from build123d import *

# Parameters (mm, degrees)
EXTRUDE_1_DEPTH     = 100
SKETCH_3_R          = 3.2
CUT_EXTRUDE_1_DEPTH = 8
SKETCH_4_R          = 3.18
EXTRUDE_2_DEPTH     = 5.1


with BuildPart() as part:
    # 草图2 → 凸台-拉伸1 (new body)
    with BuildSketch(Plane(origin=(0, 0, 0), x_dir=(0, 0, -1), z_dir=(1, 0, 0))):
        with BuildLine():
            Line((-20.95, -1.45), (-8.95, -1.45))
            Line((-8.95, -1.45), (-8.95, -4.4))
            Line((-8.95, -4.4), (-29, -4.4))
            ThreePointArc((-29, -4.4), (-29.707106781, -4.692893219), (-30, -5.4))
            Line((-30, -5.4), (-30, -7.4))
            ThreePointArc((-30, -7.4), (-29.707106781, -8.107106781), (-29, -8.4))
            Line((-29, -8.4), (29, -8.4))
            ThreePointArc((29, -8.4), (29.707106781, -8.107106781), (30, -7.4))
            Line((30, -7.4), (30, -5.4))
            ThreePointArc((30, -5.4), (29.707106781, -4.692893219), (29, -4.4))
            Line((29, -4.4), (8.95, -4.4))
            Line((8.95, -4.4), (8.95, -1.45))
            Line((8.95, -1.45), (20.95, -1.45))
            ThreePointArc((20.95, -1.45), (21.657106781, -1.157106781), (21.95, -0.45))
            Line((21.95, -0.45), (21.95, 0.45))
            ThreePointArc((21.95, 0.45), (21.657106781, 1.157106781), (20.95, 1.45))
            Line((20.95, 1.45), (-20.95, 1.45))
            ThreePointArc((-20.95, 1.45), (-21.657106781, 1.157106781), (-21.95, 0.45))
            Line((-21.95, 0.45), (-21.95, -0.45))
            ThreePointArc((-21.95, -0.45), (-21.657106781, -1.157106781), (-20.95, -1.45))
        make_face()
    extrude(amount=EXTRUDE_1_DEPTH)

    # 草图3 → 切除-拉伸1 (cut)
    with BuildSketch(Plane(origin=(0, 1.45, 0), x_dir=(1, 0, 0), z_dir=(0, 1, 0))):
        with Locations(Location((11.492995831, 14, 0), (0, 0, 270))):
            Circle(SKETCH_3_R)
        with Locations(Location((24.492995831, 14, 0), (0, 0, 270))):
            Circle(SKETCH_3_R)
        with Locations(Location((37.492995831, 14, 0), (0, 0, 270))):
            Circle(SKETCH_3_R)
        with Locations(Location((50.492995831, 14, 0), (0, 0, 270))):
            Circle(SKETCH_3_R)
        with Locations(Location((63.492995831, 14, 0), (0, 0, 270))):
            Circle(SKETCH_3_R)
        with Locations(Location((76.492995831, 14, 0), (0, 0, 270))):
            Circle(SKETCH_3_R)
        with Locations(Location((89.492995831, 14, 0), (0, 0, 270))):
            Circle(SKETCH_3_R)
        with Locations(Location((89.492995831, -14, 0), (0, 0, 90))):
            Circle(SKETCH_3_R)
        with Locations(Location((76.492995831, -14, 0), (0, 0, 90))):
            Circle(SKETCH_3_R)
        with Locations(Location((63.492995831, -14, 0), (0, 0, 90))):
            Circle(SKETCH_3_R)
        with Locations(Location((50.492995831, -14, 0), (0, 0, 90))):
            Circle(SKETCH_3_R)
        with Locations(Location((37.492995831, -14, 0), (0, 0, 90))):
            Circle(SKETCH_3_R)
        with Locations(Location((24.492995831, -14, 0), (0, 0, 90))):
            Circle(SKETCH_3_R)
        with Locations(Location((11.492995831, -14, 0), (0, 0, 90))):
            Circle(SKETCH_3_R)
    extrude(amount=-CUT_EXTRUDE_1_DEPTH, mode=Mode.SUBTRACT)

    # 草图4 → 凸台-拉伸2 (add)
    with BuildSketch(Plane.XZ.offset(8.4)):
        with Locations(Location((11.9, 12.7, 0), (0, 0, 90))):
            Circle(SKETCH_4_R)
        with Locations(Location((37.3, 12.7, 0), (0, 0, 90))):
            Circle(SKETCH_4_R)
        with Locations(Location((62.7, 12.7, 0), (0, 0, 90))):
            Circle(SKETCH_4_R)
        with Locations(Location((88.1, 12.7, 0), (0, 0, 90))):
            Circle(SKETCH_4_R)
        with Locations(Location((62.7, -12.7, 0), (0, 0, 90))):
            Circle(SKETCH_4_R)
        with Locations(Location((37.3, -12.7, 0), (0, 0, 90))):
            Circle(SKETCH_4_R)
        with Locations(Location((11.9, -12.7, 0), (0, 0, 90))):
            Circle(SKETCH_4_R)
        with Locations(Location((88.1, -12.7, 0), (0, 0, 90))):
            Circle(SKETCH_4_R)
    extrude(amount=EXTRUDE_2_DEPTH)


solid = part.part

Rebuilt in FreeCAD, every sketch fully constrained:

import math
import FreeCAD as App
import Part
import Sketcher

doc = App.newDocument("Part")
body = doc.addObject("PartDesign::Body", "Body")

sketch1 = body.newObject("Sketcher::SketchObject", "Sketch")
sketch1.AttachmentSupport = (doc.getObject("YZ_Plane"), [""])
sketch1.MapMode = "FlatFace"
sketch1.addGeometry([
    Part.LineSegment(App.Vector(-1.4, 20.9, 0), App.Vector(-1.4, 8.9, 0)),
    Part.LineSegment(App.Vector(-1.4, 8.9, 0), App.Vector(-4.4, 8.9, 0)),
    Part.LineSegment(App.Vector(-4.4, 8.9, 0), App.Vector(-4.4, 29, 0)),
    Part.ArcOfCircle(Part.Circle(App.Vector(-5.4, 29, 0), App.Vector(0, 0, 1), 1), math.radians(0), math.radians(90)),
    Part.LineSegment(App.Vector(-5.4, 30, 0), App.Vector(-7.4, 30, 0)),
    Part.ArcOfCircle(Part.Circle(App.Vector(-7.4, 29, 0), App.Vector(0, 0, 1), 1), math.radians(90), math.radians(180)),
    Part.LineSegment(App.Vector(-8.4, 29, 0), App.Vector(-8.4, -29, 0)),
    Part.ArcOfCircle(Part.Circle(App.Vector(-7.4, -29, 0), App.Vector(0, 0, 1), 1), math.radians(-180), math.radians(-90)),
    Part.LineSegment(App.Vector(-7.4, -30, 0), App.Vector(-5.4, -30, 0)),
    Part.ArcOfCircle(Part.Circle(App.Vector(-5.4, -29, 0), App.Vector(0, 0, 1), 1), math.radians(-90), math.radians(0)),
    Part.LineSegment(App.Vector(-4.4, -29, 0), App.Vector(-4.4, -8.9, 0)),
    Part.LineSegment(App.Vector(-4.4, -8.9, 0), App.Vector(-1.4, -8.9, 0)),
    Part.LineSegment(App.Vector(-1.4, -8.9, 0), App.Vector(-1.4, -20.9, 0)),
    Part.ArcOfCircle(Part.Circle(App.Vector(-0.4, -20.9, 0), App.Vector(0, 0, 1), 1), math.radians(-180), math.radians(-90)),
    Part.LineSegment(App.Vector(-0.5, -21.9, 0), App.Vector(0.5, -21.9, 0)),
    Part.ArcOfCircle(Part.Circle(App.Vector(0.4, -20.9, 0), App.Vector(0, 0, 1), 1), math.radians(-90), math.radians(0)),
    Part.LineSegment(App.Vector(1.4, -20.9, 0), App.Vector(1.4, 20.9, 0)),
    Part.ArcOfCircle(Part.Circle(App.Vector(0.4, 20.9, 0), App.Vector(0, 0, 1), 1), math.radians(0), math.radians(90)),
    Part.LineSegment(App.Vector(0.5, 21.9, 0), App.Vector(-0.5, 21.9, 0)),
    Part.ArcOfCircle(Part.Circle(App.Vector(-0.4, 20.9, 0), App.Vector(0, 0, 1), 1), math.radians(90), math.radians(180)),
], False)
sketch1.addConstraint([
    Sketcher.Constraint("Coincident", 0, 2, 1, 1),
    Sketcher.Constraint("Coincident", 1, 2, 2, 1),
    Sketcher.Constraint("Tangent", 2, 2, 3, 1),
    Sketcher.Constraint("Tangent", 3, 2, 4, 1),
    Sketcher.Constraint("Tangent", 4, 2, 5, 1),
    Sketcher.Constraint("Tangent", 5, 2, 6, 1),
    Sketcher.Constraint("Tangent", 6, 2, 7, 1),
    Sketcher.Constraint("Tangent", 7, 2, 8, 1),
    Sketcher.Constraint("Tangent", 8, 2, 9, 1),
    Sketcher.Constraint("Tangent", 9, 2, 10, 1),
    Sketcher.Constraint("Coincident", 10, 2, 11, 1),
    Sketcher.Constraint("Coincident", 11, 2, 12, 1),
    Sketcher.Constraint("Tangent", 12, 2, 13, 1),
    Sketcher.Constraint("Tangent", 13, 2, 14, 1),
    Sketcher.Constraint("Tangent", 14, 2, 15, 1),
    Sketcher.Constraint("Tangent", 15, 2, 16, 1),
    Sketcher.Constraint("Tangent", 16, 2, 17, 1),
    Sketcher.Constraint("Tangent", 17, 2, 18, 1),
    Sketcher.Constraint("Tangent", 18, 2, 19, 1),
    Sketcher.Constraint("Tangent", 19, 2, 0, 1),
    Sketcher.Constraint("Vertical", 0),
    Sketcher.Constraint("Horizontal", 1),
    Sketcher.Constraint("Vertical", 2),
    Sketcher.Constraint("Horizontal", 4),
    Sketcher.Constraint("Vertical", 6),
    Sketcher.Constraint("Horizontal", 8),
    Sketcher.Constraint("Vertical", 10),
    Sketcher.Constraint("Horizontal", 11),
    Sketcher.Constraint("Vertical", 12),
    Sketcher.Constraint("Horizontal", 14),
    Sketcher.Constraint("Vertical", 16),
    Sketcher.Constraint("Horizontal", 18),
    Sketcher.Constraint("Equal", 3, 5),
    Sketcher.Constraint("Equal", 5, 7),
    Sketcher.Constraint("Equal", 7, 9),
    Sketcher.Constraint("Equal", 9, 13),
    Sketcher.Constraint("Equal", 13, 15),
    Sketcher.Constraint("Equal", 15, 17),
    Sketcher.Constraint("Equal", 17, 19),
    Sketcher.Constraint("Symmetric", 13, 3, 17, 3, -1, 1),
    Sketcher.Constraint("Symmetric", 3, 3, 9, 3, -1),
    Sketcher.Constraint("Symmetric", 0, 2, 11, 2, -1),
    Sketcher.Constraint("Radius", 3, 1.0),
    Sketcher.Constraint("DistanceX", 4, 2, 4, 1, 2.0),
    Sketcher.Constraint("DistanceY", 0, 2, 0, 1, 12.0),
    Sketcher.Constraint("DistanceY", 6, 2, 6, 1, 58.0),
    Sketcher.Constraint("DistanceX", 14, 1, 14, 2, 0.9),
    Sketcher.Constraint("DistanceY", 16, 1, 16, 2, 41.9),
    Sketcher.Constraint("DistanceX", 1, 2, 1, 1, 2.95),
])
pad1 = body.newObject("PartDesign::Pad", "Pad")
pad1.Profile = sketch1
pad1.Length = 100

sketch2 = body.newObject("Sketcher::SketchObject", "Sketch001")
sketch2.AttachmentSupport = (doc.getObject("XZ_Plane"), [""])
sketch2.MapMode = "FlatFace"
sketch2.AttachmentOffset = App.Placement(App.Vector(0, 0, -1.45), App.Rotation())
sketch2.addGeometry([
    Part.Circle(App.Vector(11.5, -14, 0), App.Vector(0, 0, 1), 3.2),
    Part.Circle(App.Vector(24.5, -14, 0), App.Vector(0, 0, 1), 3.2),
    Part.Circle(App.Vector(37.5, -14, 0), App.Vector(0, 0, 1), 3.2),
    Part.Circle(App.Vector(50.5, -14, 0), App.Vector(0, 0, 1), 3.2),
    Part.Circle(App.Vector(63.5, -14, 0), App.Vector(0, 0, 1), 3.2),
    Part.Circle(App.Vector(76.5, -14, 0), App.Vector(0, 0, 1), 3.2),
    Part.Circle(App.Vector(89.5, -14, 0), App.Vector(0, 0, 1), 3.2),
    Part.Circle(App.Vector(89.5, 14, 0), App.Vector(0, 0, 1), 3.2),
    Part.Circle(App.Vector(76.5, 14, 0), App.Vector(0, 0, 1), 3.2),
    Part.Circle(App.Vector(63.5, 14, 0), App.Vector(0, 0, 1), 3.2),
    Part.Circle(App.Vector(50.5, 14, 0), App.Vector(0, 0, 1), 3.2),
    Part.Circle(App.Vector(37.5, 14, 0), App.Vector(0, 0, 1), 3.2),
    Part.Circle(App.Vector(24.5, 14, 0), App.Vector(0, 0, 1), 3.2),
    Part.Circle(App.Vector(11.5, 14, 0), App.Vector(0, 0, 1), 3.2),
], False)
sketch2.addConstraint([
    Sketcher.Constraint("Equal", 0, 1),
    Sketcher.Constraint("Equal", 1, 2),
    Sketcher.Constraint("Equal", 2, 3),
    Sketcher.Constraint("Equal", 3, 4),
    Sketcher.Constraint("Equal", 4, 5),
    Sketcher.Constraint("Equal", 5, 6),
    Sketcher.Constraint("Equal", 6, 7),
    Sketcher.Constraint("Equal", 7, 8),
    Sketcher.Constraint("Equal", 8, 9),
    Sketcher.Constraint("Equal", 9, 10),
    Sketcher.Constraint("Equal", 10, 11),
    Sketcher.Constraint("Equal", 11, 12),
    Sketcher.Constraint("Equal", 12, 13),
    Sketcher.Constraint("Symmetric", 6, 3, 7, 3, -1),
    Sketcher.Constraint("Symmetric", 5, 3, 8, 3, -1),
    Sketcher.Constraint("Symmetric", 4, 3, 9, 3, -1),
    Sketcher.Constraint("Symmetric", 3, 3, 10, 3, -1),
    Sketcher.Constraint("Symmetric", 2, 3, 11, 3, -1),
    Sketcher.Constraint("Symmetric", 1, 3, 12, 3, -1),
    Sketcher.Constraint("Symmetric", 0, 3, 13, 3, -1),
    Sketcher.Constraint("Horizontal", 0, 3, 1, 3),
    Sketcher.Constraint("Horizontal", 1, 3, 2, 3),
    Sketcher.Constraint("Horizontal", 2, 3, 3, 3),
    Sketcher.Constraint("Horizontal", 3, 3, 4, 3),
    Sketcher.Constraint("Horizontal", 4, 3, 5, 3),
    Sketcher.Constraint("Horizontal", 5, 3, 6, 3),
    Sketcher.Constraint("Diameter", 0, 6.4),
    Sketcher.Constraint("DistanceY", 0, 3, -1, 1, 14.0),
    Sketcher.Constraint("DistanceX", 0, 3, 1, 3, 13.0),
    Sketcher.Constraint("DistanceX", 1, 3, 2, 3, 13.0),
    Sketcher.Constraint("DistanceX", 2, 3, 3, 3, 13.0),
    Sketcher.Constraint("DistanceX", 3, 3, 4, 3, 13.0),
    Sketcher.Constraint("DistanceX", 4, 3, 5, 3, 13.0),
    Sketcher.Constraint("DistanceX", 5, 3, 6, 3, 13.0),
    Sketcher.Constraint("DistanceX", -1, 1, 0, 3, 11.492996),
])
pocket1 = body.newObject("PartDesign::Pocket", "Pocket")
pocket1.Profile = sketch2
pocket1.Length = 8
pocket1.Reversed = True

sketch3 = body.newObject("Sketcher::SketchObject", "Sketch002")
sketch3.AttachmentSupport = (doc.getObject("XZ_Plane"), [""])
sketch3.MapMode = "FlatFace"
sketch3.AttachmentOffset = App.Placement(App.Vector(0, 0, 8.4), App.Rotation())
sketch3.addGeometry([
    Part.Circle(App.Vector(11.9, 12.7, 0), App.Vector(0, 0, 1), 3.2),
    Part.Circle(App.Vector(37.3, 12.7, 0), App.Vector(0, 0, 1), 3.2),
    Part.Circle(App.Vector(62.7, 12.7, 0), App.Vector(0, 0, 1), 3.2),
    Part.Circle(App.Vector(88.1, 12.7, 0), App.Vector(0, 0, 1), 3.2),
    Part.Circle(App.Vector(62.7, -12.7, 0), App.Vector(0, 0, 1), 3.2),
    Part.Circle(App.Vector(37.3, -12.7, 0), App.Vector(0, 0, 1), 3.2),
    Part.Circle(App.Vector(11.9, -12.7, 0), App.Vector(0, 0, 1), 3.2),
    Part.Circle(App.Vector(88.1, -12.7, 0), App.Vector(0, 0, 1), 3.2),
], False)
sketch3.addConstraint([
    Sketcher.Constraint("Equal", 0, 1),
    Sketcher.Constraint("Equal", 1, 2),
    Sketcher.Constraint("Equal", 2, 3),
    Sketcher.Constraint("Equal", 3, 4),
    Sketcher.Constraint("Equal", 4, 5),
    Sketcher.Constraint("Equal", 5, 6),
    Sketcher.Constraint("Equal", 6, 7),
    Sketcher.Constraint("Symmetric", 2, 3, 4, 3, -1),
    Sketcher.Constraint("Symmetric", 1, 3, 5, 3, -1),
    Sketcher.Constraint("Symmetric", 0, 3, 6, 3, -1),
    Sketcher.Constraint("Symmetric", 3, 3, 7, 3, -1),
    Sketcher.Constraint("Horizontal", 0, 3, 1, 3),
    Sketcher.Constraint("Horizontal", 1, 3, 2, 3),
    Sketcher.Constraint("Horizontal", 2, 3, 3, 3),
    Sketcher.Constraint("Diameter", 0, 6.36),
    Sketcher.Constraint("DistanceX", -1, 1, 0, 3, 11.9),
    Sketcher.Constraint("DistanceY", -1, 1, 0, 3, 12.7),
    Sketcher.Constraint("DistanceX", -1, 1, 1, 3, 37.3),
    Sketcher.Constraint("DistanceX", -1, 1, 2, 3, 62.7),
    Sketcher.Constraint("DistanceX", -1, 1, 3, 3, 88.1),
])
pad2 = body.newObject("PartDesign::Pad", "Pad001")
pad2.Profile = sketch3
pad2.Length = 5.1

doc.recompute()
